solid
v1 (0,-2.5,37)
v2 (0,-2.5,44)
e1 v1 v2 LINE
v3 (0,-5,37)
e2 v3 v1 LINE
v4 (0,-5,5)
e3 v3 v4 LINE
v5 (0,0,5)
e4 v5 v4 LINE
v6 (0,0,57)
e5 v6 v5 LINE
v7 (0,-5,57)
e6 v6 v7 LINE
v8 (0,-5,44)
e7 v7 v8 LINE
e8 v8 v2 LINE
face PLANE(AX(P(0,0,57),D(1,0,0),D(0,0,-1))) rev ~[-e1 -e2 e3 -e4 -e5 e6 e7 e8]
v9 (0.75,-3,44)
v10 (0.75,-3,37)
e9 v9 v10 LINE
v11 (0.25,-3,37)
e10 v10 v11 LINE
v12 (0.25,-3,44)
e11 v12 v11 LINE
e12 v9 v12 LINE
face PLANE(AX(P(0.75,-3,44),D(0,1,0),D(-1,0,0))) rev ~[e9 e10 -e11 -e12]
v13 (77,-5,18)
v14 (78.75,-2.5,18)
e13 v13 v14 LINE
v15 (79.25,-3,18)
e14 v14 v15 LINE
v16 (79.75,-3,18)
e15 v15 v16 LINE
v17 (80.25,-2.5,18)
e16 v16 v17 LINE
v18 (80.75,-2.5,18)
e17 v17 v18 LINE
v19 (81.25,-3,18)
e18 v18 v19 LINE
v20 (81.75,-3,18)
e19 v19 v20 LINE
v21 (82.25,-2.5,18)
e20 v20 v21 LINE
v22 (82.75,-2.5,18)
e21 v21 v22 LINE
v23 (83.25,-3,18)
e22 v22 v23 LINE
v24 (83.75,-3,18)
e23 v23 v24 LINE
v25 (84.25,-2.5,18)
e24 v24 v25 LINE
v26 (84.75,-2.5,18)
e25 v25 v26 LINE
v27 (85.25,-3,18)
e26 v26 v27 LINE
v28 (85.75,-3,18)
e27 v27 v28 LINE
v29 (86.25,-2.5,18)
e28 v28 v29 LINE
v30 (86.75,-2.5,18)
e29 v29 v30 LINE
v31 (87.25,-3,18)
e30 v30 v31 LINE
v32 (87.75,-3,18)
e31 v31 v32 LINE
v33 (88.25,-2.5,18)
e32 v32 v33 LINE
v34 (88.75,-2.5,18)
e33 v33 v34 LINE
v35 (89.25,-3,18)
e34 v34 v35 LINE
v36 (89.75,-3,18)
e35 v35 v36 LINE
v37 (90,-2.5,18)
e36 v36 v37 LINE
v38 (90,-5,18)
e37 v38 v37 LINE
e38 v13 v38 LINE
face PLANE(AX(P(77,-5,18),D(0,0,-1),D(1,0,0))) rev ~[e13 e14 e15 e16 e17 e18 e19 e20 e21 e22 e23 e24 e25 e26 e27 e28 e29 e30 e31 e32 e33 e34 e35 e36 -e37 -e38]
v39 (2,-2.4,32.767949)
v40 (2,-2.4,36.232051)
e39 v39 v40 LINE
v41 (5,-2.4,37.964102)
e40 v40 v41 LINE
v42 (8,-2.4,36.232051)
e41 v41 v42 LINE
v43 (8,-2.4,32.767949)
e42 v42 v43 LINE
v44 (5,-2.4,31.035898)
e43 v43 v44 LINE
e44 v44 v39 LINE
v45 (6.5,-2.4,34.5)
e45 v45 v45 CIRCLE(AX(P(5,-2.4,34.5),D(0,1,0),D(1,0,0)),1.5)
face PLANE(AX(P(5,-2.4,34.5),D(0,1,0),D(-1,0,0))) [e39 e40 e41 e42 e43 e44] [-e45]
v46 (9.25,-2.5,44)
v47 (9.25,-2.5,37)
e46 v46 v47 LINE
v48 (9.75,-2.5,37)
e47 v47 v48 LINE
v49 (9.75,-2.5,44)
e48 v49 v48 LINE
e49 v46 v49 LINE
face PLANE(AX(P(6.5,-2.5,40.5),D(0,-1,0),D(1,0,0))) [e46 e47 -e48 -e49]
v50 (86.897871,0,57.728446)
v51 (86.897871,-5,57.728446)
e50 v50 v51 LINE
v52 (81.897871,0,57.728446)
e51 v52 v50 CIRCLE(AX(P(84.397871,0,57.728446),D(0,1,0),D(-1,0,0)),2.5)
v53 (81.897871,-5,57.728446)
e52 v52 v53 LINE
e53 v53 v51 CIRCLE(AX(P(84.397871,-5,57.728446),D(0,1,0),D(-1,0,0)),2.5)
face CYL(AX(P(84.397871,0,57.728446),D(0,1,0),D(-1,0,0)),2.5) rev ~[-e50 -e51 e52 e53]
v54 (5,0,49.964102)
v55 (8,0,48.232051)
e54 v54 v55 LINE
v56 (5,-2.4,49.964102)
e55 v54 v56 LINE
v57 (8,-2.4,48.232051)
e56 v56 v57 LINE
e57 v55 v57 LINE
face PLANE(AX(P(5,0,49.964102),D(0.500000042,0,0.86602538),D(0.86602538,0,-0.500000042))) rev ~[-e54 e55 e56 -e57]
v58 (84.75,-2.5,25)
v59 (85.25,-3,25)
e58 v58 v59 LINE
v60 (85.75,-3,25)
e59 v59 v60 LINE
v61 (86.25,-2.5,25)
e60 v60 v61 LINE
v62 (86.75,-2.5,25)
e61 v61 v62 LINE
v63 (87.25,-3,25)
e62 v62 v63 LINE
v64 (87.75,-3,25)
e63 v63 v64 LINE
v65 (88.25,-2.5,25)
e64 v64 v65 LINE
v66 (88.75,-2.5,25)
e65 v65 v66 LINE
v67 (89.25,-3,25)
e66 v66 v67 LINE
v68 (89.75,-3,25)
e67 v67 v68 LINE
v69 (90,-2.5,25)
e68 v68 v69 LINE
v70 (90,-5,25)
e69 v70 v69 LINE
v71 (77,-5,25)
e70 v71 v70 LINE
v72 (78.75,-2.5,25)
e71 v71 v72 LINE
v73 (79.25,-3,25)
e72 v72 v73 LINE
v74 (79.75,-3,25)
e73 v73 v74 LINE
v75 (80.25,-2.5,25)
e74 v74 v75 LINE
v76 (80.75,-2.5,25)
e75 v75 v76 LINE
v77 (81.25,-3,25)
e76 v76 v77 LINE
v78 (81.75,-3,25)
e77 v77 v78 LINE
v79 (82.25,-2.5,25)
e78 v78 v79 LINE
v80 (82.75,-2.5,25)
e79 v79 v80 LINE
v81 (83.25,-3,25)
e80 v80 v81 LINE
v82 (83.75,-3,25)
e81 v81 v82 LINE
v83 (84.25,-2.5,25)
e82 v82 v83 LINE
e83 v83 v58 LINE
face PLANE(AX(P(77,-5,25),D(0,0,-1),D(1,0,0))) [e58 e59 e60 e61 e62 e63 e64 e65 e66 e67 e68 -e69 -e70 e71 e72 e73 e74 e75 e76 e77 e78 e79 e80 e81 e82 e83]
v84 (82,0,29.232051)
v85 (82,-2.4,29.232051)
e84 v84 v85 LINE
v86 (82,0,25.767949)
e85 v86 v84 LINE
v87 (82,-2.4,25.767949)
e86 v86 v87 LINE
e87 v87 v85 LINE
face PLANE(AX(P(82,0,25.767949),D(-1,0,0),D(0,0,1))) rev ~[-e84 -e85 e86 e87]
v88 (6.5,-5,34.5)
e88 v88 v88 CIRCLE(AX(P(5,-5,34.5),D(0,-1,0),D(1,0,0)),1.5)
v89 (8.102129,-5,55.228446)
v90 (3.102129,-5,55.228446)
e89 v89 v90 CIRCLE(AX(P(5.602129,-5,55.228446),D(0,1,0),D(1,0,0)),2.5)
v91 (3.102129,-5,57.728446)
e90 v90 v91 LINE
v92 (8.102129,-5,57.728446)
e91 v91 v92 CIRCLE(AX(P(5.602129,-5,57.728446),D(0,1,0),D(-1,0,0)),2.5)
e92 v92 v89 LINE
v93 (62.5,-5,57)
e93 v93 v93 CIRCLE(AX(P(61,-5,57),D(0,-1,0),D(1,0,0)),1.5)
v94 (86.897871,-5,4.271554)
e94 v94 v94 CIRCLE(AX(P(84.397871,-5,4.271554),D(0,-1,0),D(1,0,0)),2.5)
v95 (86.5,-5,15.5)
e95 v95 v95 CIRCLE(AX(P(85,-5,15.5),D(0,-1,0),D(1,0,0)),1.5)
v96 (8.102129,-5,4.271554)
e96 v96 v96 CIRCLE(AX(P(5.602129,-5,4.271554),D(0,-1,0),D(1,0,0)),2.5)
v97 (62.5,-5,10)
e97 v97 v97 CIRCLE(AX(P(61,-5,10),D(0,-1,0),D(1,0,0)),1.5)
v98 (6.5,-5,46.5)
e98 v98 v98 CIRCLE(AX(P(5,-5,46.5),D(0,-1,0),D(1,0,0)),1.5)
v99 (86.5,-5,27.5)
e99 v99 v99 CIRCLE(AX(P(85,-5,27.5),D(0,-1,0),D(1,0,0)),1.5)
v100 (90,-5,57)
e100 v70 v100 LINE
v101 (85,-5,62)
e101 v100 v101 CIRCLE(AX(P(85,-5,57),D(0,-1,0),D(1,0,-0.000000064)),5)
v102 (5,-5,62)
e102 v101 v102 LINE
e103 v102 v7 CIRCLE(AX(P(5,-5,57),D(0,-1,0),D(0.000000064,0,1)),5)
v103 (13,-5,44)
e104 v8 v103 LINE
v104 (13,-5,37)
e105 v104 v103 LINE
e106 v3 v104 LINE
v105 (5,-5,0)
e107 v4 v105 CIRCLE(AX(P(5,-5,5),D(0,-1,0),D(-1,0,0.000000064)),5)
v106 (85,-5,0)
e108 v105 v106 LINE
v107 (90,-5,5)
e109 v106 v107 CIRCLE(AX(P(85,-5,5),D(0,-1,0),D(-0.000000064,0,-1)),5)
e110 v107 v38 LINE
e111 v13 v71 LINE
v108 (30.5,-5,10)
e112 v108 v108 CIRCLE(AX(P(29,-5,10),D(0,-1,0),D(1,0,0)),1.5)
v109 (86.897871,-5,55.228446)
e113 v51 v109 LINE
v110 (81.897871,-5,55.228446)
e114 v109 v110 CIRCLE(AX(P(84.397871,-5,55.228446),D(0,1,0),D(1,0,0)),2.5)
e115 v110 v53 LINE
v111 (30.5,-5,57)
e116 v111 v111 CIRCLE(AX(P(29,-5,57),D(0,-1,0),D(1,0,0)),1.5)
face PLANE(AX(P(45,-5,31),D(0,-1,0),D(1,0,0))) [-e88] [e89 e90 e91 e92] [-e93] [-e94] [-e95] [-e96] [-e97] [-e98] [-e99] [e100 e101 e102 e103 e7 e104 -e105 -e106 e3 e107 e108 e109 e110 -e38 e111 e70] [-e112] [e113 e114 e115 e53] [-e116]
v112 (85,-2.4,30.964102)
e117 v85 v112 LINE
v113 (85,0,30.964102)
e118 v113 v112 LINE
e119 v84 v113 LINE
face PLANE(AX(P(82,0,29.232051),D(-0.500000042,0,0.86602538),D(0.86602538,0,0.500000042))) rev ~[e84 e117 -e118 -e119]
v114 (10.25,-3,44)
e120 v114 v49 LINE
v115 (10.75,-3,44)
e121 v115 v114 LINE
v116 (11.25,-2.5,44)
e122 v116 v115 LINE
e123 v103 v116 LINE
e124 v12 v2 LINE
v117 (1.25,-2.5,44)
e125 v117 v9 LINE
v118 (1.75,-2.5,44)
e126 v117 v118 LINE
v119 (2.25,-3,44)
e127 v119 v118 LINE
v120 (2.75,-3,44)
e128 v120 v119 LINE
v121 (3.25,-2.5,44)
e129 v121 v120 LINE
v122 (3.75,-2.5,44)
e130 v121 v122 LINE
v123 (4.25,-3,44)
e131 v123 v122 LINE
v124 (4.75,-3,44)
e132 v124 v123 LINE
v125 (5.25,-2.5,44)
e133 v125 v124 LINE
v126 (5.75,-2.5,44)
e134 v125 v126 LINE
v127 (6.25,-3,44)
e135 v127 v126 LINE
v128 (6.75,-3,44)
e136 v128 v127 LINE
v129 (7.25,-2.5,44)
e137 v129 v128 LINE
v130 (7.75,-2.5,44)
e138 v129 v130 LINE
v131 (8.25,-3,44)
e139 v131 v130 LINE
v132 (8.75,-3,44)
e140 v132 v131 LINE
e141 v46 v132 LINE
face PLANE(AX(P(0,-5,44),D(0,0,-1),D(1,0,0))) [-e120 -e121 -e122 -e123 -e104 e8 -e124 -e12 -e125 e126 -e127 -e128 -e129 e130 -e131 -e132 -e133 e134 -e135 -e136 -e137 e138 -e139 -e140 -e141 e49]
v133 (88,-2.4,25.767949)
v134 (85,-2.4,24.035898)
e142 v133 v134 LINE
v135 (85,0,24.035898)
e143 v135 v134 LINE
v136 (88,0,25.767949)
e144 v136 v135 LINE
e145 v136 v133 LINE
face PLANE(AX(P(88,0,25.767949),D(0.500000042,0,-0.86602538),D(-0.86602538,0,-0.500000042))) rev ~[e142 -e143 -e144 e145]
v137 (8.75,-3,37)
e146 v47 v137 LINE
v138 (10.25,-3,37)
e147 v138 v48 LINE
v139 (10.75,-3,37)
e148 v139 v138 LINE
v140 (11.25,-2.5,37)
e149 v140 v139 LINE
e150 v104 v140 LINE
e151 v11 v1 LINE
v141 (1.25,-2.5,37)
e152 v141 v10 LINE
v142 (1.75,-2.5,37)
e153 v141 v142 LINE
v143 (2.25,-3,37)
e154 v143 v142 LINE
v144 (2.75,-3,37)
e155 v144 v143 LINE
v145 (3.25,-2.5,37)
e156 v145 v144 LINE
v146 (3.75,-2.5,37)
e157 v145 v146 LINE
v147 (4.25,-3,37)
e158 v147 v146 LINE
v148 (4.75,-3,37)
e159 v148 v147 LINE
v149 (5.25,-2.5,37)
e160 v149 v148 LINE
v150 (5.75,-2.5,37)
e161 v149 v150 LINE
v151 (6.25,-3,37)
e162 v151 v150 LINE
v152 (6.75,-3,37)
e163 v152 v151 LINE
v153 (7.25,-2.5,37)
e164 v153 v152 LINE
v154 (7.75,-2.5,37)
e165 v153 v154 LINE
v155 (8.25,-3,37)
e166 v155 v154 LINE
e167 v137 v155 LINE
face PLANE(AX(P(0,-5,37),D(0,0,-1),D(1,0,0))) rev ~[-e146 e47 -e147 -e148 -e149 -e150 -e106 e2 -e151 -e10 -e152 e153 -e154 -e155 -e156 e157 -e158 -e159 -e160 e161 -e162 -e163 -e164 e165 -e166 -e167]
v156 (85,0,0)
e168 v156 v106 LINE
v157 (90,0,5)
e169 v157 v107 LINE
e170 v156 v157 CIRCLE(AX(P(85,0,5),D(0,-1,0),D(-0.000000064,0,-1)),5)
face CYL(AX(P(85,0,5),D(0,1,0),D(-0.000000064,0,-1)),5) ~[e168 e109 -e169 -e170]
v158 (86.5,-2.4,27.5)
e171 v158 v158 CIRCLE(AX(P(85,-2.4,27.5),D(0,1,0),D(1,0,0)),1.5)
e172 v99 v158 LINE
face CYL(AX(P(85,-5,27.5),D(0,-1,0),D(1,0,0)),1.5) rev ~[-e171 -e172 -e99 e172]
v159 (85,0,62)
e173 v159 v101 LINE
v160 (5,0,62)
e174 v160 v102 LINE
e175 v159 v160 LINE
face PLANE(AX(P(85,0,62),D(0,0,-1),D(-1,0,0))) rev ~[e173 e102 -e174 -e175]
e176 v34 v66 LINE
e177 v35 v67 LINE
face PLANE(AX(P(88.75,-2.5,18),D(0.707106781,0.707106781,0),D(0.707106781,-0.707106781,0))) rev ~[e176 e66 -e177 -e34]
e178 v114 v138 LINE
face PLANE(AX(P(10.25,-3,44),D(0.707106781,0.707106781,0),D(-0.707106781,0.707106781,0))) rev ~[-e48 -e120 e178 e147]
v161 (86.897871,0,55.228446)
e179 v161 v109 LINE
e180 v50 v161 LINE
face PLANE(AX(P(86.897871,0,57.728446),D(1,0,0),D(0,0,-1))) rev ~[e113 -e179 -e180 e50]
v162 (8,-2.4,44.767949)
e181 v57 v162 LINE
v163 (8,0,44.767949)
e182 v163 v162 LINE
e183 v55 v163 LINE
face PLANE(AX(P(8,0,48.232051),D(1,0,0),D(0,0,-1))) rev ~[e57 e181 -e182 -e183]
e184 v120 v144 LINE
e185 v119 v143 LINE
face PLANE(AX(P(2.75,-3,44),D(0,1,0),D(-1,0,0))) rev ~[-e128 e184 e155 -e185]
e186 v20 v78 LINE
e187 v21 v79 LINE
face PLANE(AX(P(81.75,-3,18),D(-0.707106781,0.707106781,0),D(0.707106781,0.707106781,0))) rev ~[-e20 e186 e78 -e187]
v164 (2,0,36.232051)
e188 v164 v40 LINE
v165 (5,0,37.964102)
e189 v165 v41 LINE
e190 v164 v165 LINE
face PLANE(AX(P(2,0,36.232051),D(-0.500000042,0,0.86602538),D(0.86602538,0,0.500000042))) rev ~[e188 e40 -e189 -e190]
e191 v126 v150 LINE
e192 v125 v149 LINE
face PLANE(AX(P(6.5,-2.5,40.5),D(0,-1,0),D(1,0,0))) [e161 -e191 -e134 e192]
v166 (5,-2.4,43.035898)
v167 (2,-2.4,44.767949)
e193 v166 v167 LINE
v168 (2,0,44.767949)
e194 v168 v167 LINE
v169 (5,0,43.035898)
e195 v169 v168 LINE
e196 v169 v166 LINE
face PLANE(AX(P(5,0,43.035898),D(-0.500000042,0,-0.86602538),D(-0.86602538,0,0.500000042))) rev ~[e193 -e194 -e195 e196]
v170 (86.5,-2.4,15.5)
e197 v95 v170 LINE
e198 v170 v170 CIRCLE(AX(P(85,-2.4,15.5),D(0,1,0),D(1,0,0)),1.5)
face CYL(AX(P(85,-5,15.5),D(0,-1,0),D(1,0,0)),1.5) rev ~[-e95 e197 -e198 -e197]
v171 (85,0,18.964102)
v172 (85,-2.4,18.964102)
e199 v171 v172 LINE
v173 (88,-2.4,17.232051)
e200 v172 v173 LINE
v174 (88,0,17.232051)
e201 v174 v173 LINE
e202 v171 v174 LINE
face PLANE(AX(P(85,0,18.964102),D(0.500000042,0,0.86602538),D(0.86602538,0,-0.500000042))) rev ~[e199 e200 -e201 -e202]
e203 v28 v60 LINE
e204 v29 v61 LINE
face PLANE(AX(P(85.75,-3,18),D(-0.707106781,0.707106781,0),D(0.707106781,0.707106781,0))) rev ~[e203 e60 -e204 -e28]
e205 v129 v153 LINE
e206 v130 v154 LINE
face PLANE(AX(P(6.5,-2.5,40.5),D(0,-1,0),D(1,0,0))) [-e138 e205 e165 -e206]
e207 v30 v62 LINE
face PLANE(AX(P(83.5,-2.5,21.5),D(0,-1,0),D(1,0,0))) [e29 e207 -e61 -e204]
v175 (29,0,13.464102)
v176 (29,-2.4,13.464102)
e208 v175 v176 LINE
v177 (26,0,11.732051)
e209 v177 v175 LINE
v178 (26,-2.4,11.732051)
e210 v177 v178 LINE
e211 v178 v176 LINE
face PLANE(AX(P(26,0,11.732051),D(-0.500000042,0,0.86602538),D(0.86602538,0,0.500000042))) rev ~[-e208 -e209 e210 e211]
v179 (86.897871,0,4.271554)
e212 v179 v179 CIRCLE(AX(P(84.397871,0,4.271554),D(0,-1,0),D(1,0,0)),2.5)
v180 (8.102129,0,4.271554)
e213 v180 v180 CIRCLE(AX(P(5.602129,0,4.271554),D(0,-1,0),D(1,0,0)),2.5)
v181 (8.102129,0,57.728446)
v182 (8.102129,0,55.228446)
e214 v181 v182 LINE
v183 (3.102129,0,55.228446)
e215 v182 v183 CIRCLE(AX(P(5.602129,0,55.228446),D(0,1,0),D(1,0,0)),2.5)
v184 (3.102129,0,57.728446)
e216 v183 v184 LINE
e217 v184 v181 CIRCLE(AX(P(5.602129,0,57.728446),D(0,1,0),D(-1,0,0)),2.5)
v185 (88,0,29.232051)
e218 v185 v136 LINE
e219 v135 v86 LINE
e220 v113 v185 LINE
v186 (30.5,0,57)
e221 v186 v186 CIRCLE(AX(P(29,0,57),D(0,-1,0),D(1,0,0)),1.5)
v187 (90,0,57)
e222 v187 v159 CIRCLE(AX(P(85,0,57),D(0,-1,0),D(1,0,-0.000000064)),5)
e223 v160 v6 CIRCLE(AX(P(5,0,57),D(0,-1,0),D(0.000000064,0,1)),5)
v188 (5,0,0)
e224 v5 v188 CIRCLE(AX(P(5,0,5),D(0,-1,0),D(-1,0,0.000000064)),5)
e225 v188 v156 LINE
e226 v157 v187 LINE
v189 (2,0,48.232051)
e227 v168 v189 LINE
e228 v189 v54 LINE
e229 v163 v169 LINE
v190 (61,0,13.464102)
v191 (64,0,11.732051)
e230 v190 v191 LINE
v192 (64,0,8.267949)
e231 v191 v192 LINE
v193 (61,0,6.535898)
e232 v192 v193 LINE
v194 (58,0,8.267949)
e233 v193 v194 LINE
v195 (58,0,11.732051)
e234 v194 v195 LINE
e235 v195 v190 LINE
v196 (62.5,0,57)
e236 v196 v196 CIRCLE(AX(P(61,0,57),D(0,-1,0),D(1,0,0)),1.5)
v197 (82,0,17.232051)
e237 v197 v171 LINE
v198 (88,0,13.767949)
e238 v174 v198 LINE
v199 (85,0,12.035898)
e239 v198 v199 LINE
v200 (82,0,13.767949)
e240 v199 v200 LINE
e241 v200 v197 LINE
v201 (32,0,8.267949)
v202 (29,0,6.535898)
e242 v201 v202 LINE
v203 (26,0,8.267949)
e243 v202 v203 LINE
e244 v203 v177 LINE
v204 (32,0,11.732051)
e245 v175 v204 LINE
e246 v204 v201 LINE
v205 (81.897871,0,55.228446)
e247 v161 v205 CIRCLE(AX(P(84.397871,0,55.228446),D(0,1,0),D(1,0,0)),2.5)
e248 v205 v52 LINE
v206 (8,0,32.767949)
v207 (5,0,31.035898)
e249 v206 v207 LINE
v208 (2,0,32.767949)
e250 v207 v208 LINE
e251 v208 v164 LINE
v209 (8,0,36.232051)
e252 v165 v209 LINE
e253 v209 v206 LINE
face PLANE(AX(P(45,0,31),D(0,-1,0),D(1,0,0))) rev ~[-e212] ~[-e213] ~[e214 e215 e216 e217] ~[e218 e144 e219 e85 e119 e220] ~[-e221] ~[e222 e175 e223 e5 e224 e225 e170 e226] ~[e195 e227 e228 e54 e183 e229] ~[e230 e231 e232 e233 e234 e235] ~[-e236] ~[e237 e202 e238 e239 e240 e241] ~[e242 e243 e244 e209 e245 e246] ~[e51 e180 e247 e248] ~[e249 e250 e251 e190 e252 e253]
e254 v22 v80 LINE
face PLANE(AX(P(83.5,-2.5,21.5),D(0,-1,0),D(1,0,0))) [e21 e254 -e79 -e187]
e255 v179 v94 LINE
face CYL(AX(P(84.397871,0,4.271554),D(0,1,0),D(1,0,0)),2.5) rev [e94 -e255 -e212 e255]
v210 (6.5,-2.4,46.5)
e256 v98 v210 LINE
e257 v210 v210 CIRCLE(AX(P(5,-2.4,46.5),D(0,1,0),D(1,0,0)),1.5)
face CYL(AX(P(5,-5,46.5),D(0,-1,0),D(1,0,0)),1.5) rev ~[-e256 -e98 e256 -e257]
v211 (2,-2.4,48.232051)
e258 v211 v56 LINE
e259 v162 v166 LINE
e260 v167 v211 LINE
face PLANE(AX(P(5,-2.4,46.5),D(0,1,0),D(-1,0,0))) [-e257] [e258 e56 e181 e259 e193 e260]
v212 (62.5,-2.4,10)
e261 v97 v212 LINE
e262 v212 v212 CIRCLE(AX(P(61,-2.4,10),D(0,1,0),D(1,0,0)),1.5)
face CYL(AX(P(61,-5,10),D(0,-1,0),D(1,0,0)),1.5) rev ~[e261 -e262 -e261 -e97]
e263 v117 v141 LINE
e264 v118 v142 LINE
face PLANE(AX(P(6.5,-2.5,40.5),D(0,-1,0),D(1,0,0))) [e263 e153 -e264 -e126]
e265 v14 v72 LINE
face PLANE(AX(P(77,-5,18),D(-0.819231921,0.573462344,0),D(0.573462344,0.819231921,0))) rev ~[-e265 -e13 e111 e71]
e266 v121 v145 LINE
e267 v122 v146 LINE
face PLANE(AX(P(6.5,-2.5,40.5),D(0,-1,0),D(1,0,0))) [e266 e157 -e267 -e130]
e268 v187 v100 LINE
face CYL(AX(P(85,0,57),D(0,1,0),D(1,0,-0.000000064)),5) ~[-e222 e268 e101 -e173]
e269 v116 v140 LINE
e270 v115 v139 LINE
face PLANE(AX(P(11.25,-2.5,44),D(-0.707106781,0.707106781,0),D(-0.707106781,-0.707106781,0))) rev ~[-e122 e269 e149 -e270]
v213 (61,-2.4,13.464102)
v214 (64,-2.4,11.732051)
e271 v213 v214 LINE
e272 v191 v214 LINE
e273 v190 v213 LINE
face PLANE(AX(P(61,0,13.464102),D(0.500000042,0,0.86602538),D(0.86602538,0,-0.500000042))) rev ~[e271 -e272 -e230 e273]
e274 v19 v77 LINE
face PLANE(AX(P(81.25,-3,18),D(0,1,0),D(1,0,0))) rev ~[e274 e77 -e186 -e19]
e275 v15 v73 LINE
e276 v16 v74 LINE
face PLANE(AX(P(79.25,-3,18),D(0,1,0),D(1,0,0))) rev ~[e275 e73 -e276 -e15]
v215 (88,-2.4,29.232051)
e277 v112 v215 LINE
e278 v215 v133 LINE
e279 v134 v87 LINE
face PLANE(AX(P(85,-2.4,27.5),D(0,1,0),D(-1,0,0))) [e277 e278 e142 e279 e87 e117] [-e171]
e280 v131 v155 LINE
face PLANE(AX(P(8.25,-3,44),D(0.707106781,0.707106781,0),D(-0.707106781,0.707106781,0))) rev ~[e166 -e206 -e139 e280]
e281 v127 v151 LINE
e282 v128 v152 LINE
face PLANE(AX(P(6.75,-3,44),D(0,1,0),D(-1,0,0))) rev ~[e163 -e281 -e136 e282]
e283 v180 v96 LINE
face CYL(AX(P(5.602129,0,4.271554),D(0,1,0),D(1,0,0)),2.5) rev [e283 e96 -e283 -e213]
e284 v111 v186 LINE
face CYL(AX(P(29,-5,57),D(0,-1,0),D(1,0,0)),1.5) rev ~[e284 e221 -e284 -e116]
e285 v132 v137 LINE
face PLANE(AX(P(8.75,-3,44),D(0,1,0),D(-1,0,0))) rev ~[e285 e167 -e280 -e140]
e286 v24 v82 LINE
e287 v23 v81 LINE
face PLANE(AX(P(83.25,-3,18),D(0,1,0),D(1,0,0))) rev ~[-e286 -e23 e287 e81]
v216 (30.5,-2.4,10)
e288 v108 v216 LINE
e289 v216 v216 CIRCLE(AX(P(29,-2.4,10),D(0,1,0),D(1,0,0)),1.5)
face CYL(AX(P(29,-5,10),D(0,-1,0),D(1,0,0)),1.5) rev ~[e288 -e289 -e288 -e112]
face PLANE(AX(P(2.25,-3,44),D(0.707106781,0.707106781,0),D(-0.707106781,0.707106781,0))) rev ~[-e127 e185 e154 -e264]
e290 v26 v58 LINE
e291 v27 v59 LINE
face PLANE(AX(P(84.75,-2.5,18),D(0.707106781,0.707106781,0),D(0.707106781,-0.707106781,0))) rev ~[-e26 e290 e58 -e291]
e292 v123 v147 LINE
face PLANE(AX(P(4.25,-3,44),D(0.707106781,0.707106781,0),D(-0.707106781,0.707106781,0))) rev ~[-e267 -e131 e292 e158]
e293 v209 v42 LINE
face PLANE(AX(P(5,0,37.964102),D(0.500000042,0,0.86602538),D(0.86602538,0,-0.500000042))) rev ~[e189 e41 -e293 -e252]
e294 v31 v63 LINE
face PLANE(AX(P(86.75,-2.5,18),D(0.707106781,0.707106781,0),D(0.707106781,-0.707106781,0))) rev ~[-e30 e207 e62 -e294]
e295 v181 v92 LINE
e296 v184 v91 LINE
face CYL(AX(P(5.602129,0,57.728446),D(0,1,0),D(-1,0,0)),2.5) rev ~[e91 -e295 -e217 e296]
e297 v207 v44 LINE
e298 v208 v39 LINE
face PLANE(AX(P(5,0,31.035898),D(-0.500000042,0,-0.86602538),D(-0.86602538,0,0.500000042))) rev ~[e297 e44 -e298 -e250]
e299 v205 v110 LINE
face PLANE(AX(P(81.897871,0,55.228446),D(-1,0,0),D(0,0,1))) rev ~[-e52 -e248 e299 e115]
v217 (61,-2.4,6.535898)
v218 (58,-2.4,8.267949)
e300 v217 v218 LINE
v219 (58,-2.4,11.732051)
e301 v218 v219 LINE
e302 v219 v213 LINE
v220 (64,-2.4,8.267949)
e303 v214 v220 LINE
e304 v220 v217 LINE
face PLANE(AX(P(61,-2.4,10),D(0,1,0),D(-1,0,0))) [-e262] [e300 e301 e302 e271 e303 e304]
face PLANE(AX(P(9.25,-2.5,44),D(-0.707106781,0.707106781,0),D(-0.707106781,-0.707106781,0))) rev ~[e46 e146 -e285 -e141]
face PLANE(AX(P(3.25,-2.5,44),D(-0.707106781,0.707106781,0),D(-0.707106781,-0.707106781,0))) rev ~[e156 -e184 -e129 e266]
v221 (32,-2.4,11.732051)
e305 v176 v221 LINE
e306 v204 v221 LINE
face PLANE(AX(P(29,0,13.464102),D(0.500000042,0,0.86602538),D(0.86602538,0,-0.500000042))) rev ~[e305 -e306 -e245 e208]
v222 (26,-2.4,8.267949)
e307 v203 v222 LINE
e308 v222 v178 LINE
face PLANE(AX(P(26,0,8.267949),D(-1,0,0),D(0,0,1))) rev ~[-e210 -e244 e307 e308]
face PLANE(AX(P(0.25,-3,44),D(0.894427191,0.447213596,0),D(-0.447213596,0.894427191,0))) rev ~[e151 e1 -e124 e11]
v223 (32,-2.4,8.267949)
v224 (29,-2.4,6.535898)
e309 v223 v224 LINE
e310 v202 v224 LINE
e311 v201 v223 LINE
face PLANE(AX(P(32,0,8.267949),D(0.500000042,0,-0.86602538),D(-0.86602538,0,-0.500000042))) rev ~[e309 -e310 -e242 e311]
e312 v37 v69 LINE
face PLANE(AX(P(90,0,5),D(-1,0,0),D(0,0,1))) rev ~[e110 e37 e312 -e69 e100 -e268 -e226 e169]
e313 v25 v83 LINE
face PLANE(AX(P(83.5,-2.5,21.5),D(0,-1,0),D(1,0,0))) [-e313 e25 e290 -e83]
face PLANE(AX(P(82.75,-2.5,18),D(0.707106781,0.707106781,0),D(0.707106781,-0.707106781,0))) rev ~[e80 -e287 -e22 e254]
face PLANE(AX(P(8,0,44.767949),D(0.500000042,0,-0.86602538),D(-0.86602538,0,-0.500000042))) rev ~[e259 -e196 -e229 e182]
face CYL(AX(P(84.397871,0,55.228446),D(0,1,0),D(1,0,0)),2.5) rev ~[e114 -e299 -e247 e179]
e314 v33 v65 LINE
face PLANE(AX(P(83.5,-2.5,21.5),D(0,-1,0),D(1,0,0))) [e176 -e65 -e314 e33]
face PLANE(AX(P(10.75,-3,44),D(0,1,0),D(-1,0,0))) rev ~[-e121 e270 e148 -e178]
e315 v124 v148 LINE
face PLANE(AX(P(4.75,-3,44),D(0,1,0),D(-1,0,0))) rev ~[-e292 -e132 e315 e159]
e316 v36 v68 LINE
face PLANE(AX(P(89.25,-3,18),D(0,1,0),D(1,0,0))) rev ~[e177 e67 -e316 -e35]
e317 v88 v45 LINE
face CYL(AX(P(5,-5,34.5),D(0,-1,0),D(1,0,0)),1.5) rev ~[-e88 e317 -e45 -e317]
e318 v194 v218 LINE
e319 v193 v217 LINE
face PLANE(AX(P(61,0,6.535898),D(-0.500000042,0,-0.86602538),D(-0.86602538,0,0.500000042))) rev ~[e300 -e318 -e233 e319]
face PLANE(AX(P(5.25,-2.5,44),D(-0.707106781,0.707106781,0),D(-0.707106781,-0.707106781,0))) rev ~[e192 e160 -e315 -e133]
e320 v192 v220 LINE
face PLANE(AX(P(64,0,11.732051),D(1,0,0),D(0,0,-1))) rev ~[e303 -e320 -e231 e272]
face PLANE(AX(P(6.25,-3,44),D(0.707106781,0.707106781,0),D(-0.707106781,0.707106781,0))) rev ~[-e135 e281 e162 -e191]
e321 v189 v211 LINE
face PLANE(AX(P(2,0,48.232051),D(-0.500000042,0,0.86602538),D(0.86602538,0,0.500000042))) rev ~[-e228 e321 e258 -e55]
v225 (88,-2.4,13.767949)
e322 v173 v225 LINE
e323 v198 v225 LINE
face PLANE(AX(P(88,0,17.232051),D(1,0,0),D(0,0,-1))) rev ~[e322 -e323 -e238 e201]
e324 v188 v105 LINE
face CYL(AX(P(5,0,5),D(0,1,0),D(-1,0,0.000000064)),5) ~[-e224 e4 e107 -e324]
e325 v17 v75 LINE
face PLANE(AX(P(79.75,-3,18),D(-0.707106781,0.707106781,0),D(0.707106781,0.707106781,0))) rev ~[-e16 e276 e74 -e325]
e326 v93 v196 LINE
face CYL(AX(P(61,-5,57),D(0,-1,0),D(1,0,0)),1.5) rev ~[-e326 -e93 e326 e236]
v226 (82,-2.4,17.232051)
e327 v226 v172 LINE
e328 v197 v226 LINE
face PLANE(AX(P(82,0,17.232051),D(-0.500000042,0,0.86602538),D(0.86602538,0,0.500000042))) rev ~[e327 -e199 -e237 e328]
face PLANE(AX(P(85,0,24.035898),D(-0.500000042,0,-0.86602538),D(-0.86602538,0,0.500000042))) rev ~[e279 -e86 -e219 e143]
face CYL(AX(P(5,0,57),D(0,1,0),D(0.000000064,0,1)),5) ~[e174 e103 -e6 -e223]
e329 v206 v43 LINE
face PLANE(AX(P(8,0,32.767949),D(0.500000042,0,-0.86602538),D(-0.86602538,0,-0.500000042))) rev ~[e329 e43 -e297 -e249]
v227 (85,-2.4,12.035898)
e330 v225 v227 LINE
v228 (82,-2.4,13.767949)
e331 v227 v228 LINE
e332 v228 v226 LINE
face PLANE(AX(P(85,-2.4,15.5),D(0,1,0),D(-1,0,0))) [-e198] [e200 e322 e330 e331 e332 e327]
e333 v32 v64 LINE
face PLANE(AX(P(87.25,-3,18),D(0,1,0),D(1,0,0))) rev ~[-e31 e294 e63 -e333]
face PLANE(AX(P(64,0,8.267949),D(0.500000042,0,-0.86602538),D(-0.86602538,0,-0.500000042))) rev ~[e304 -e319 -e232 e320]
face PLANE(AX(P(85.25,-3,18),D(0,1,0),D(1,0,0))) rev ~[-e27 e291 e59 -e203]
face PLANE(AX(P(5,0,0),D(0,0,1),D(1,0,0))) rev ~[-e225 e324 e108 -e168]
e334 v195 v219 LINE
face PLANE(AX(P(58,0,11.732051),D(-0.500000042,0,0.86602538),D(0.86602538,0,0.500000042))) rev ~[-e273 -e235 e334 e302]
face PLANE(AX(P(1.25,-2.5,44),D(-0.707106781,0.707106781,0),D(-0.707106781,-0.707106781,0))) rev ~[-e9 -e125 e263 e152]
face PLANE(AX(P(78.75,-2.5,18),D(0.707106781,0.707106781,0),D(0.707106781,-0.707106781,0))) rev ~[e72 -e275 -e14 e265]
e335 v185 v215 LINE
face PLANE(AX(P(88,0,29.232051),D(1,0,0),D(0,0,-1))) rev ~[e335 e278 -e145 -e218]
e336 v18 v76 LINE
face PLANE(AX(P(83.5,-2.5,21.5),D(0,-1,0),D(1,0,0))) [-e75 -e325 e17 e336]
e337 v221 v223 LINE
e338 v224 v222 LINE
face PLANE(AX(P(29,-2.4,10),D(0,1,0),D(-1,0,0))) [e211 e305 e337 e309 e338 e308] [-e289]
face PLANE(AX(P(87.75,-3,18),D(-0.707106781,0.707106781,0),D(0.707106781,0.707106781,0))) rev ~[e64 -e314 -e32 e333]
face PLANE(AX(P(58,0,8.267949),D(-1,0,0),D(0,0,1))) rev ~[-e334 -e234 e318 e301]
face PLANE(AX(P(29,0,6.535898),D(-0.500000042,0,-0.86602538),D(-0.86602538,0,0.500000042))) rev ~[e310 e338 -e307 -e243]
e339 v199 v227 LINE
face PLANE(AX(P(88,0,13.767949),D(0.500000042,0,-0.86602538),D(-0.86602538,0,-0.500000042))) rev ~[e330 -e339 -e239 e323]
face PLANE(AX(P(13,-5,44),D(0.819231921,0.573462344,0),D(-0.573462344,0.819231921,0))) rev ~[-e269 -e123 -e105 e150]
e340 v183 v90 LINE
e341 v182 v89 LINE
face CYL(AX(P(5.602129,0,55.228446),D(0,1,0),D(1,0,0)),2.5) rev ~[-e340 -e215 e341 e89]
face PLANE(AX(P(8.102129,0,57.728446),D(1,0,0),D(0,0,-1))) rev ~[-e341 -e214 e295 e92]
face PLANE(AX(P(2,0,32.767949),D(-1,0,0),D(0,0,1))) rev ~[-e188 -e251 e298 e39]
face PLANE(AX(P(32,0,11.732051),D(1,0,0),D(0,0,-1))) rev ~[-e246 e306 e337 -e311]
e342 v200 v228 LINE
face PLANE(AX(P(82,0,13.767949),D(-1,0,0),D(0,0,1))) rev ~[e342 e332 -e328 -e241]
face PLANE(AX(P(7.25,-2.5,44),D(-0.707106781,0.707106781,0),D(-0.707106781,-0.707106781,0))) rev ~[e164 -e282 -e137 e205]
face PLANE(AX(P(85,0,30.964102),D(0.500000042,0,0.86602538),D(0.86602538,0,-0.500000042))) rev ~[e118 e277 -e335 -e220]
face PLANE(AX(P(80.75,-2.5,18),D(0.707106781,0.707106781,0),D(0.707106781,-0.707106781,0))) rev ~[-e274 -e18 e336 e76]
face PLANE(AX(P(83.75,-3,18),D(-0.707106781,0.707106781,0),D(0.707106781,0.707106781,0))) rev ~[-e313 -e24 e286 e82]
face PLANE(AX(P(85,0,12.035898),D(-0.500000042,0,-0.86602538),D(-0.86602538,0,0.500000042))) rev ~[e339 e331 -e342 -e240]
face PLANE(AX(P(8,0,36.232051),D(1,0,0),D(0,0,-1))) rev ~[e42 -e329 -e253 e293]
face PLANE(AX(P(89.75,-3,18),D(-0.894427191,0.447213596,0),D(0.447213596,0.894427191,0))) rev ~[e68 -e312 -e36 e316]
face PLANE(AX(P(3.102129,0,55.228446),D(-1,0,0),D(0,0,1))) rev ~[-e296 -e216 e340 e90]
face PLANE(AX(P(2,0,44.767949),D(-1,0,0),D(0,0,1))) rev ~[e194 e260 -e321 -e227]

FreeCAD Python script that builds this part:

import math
import FreeCAD as App
import Part
import Sketcher
Q = App.Units.Quantity


def add_polygon(sketch, points):
    """Adds a closed chain of lines whose ends are joined by coincident constraints."""
    first, n = sketch.GeometryCount, len(points)
    for a, b in zip(points, points[1:] + points[:1]):
        sketch.addGeometry(Part.LineSegment(App.Vector(*a, 0), App.Vector(*b, 0)), False)
    for i in range(n):
        sketch.addConstraint(Sketcher.Constraint("Coincident", first + i, 2, first + (i + 1) % n, 1))

doc = App.newDocument("Part")
body = doc.addObject("PartDesign::Body", "Body")

sketch1 = body.newObject("Sketcher::SketchObject", "Sketch")
sketch1.AttachmentSupport = (doc.getObject("XZ_Plane"), [""])
sketch1.MapMode = "FlatFace"
sketch1.addGeometry([
    Part.ArcOfCircle(Part.Circle(App.Vector(5, 5, 0), App.Vector(0, 0, 1), 5), math.radians(179.999996), math.radians(270.000004)),
    Part.LineSegment(App.Vector(5, 0, 0), App.Vector(85, 0, 0)),
    Part.ArcOfCircle(Part.Circle(App.Vector(85, 5, 0), App.Vector(0, 0, 1), 5), math.radians(-90.000004), math.radians(0.000004)),
    Part.LineSegment(App.Vector(90, 5, 0), App.Vector(90, 57, 0)),
    Part.ArcOfCircle(Part.Circle(App.Vector(85, 57, 0), App.Vector(0, 0, 1), 5), math.radians(-0.000004), math.radians(90.000004)),
    Part.LineSegment(App.Vector(85, 62, 0), App.Vector(5, 62, 0)),
    Part.ArcOfCircle(Part.Circle(App.Vector(5, 57, 0), App.Vector(0, 0, 1), 5), math.radians(89.999996), math.radians(180.000004)),
    Part.LineSegment(App.Vector(0, 57, 0), App.Vector(0, 5, 0)),
    Part.Circle(App.Vector(5.602129, 4.271554, 0), App.Vector(0, 0, 1), 2.5),
    Part.Circle(App.Vector(84.397871, 4.271554, 0), App.Vector(0, 0, 1), 2.5),
    Part.ArcOfCircle(Part.Circle(App.Vector(5.602129, 55.228446, 0), App.Vector(0, 0, 1), 2.5), math.radians(180), math.radians(360)),
    Part.LineSegment(App.Vector(3.102129, 55.228446, 0), App.Vector(3.102129, 57.728446, 0)),
    Part.ArcOfCircle(Part.Circle(App.Vector(5.602129, 57.728446, 0), App.Vector(0, 0, 1), 2.5), math.radians(0), math.radians(180)),
    Part.LineSegment(App.Vector(8.102129, 57.728446, 0), App.Vector(8.102129, 55.228446, 0)),
    Part.LineSegment(App.Vector(81.897871, 55.228446, 0), App.Vector(81.897871, 57.728446, 0)),
    Part.ArcOfCircle(Part.Circle(App.Vector(84.397871, 57.728446, 0), App.Vector(0, 0, 1), 2.5), math.radians(0), math.radians(180)),
    Part.LineSegment(App.Vector(86.897871, 57.728446, 0), App.Vector(86.897871, 55.228446, 0)),
    Part.ArcOfCircle(Part.Circle(App.Vector(84.397871, 55.228446, 0), App.Vector(0, 0, 1), 2.5), math.radians(180), math.radians(360)),
], False)
sketch1.addConstraint([
    Sketcher.Constraint("Tangent", 0, 2, 1, 1),
    Sketcher.Constraint("Tangent", 1, 2, 2, 1),
    Sketcher.Constraint("Tangent", 2, 2, 3, 1),
    Sketcher.Constraint("Tangent", 3, 2, 4, 1),
    Sketcher.Constraint("Tangent", 4, 2, 5, 1),
    Sketcher.Constraint("Tangent", 5, 2, 6, 1),
    Sketcher.Constraint("Tangent", 6, 2, 7, 1),
    Sketcher.Constraint("Tangent", 7, 2, 0, 1),
    Sketcher.Constraint("Tangent", 10, 1, 11, 1),
    Sketcher.Constraint("Tangent", 11, 2, 12, 2),
    Sketcher.Constraint("Tangent", 12, 1, 13, 1),
    Sketcher.Constraint("Tangent", 13, 2, 10, 2),
    Sketcher.Constraint("Tangent", 14, 2, 15, 2),
    Sketcher.Constraint("Tangent", 15, 1, 16, 1),
    Sketcher.Constraint("Tangent", 16, 2, 17, 2),
    Sketcher.Constraint("Tangent", 17, 1, 14, 1),
    Sketcher.Constraint("Horizontal", 1),
    Sketcher.Constraint("Vertical", 3),
    Sketcher.Constraint("Horizontal", 5),
    Sketcher.Constraint("Vertical", 7),
    Sketcher.Constraint("Vertical", 11),
    Sketcher.Constraint("Vertical", 13),
    Sketcher.Constraint("Vertical", 14),
    Sketcher.Constraint("Vertical", 16),
    Sketcher.Constraint("Equal", 0, 2),
    Sketcher.Constraint("Equal", 2, 4),
    Sketcher.Constraint("Equal", 4, 6),
    Sketcher.Constraint("Equal", 8, 9),
    Sketcher.Constraint("Equal", 9, 10),
    Sketcher.Constraint("Equal", 12, 15),
    Sketcher.Constraint("PointOnObject", 0, 2, -1),
    Sketcher.Constraint("PointOnObject", 6, 2, -2),
    Sketcher.Constraint("Horizontal", 8, 3, 9, 3),
    Sketcher.Constraint("Horizontal", 12, 3, 15, 3),
    Sketcher.Constraint("Horizontal", 10, 3, 17, 3),
    Sketcher.Constraint("Vertical", 8, 3, 10, 3),
    Sketcher.Constraint("Vertical", 9, 3, 15, 3),
    Sketcher.Constraint("Diameter", 8, 5.0),
    Sketcher.Constraint("Radius", 0, 5.0),
    Sketcher.Constraint("DistanceX", 1, 1, 1, 2, 80.0),
    Sketcher.Constraint("DistanceY", 3, 1, 3, 2, 52.0),
    Sketcher.Constraint("DistanceY", 11, 1, 11, 2, 2.5),
    Sketcher.Constraint("DistanceX", -1, 1, 8, 3, 5.602129),
    Sketcher.Constraint("DistanceX", -1, 1, 9, 3, 84.397871),
    Sketcher.Constraint("DistanceY", 8, 3, 10, 3, 50.956892),
    Sketcher.Constraint("DistanceY", -1, 1, 8, 3, 4.271554),
])
pad1 = body.newObject("PartDesign::Pad", "Pad")
pad1.Profile = sketch1
pad1.Length = 5

sketch2 = body.newObject("Sketcher::SketchObject", "Sketch001")
sketch2.AttachmentSupport = (doc.getObject("XZ_Plane"), [""])
sketch2.MapMode = "FlatFace"
sketch2.AttachmentOffset = App.Placement(App.Vector(0, 0, 5), App.Rotation())
add_polygon(sketch2, [(0, 44), (0, 37), (13, 37), (13, 44)])
add_polygon(sketch2, [(77, 25), (77, 18), (90, 18), (90, 25)])
sketch2.addConstraint([
    Sketcher.Constraint("Vertical", 0),
    Sketcher.Constraint("Horizontal", 1),
    Sketcher.Constraint("Vertical", 2),
    Sketcher.Constraint("Horizontal", 3),
    Sketcher.Constraint("Vertical", 4),
    Sketcher.Constraint("Horizontal", 5),
    Sketcher.Constraint("Vertical", 6),
    Sketcher.Constraint("Horizontal", 7),
    Sketcher.Constraint("PointOnObject", 0, 2, -2),
    Sketcher.Constraint("Equal", 3, 5),
    Sketcher.Constraint("Equal", 2, 4),
    Sketcher.Constraint("DistanceX", 1, 1, 1, 2, 13.0),
    Sketcher.Constraint("DistanceY", 0, 2, 0, 1, 7.0),
    Sketcher.Constraint("DistanceY", -1, 1, 0, 2, 37.0),
    Sketcher.Constraint("DistanceX", -1, 1, 4, 2, 77.0),
    Sketcher.Constraint("DistanceY", -1, 1, 4, 2, 18.0),
])
pocket1 = body.newObject("PartDesign::Pocket", "Pocket")
pocket1.Profile = sketch2
pocket1.Length = 2.5

sketch3 = body.newObject("Sketcher::SketchObject", "Sketch002")
sketch3.AttachmentSupport = (doc.getObject("XY_Plane"), [""])
sketch3.MapMode = "FlatFace"
sketch3.AttachmentOffset = App.Placement(App.Vector(0, 0, 44), App.Rotation())
add_polygon(sketch3, [(13, -2.5), (13, -5), (11.25, -2.5)])
add_polygon(sketch3, [(7.75, -2.5), (9.25, -2.5), (8.75, -3), (8.25, -3)])
add_polygon(sketch3, [(9.75, -2.5), (11.25, -2.5), (10.75, -3), (10.25, -3)])
add_polygon(sketch3, [(6.25, -3), (5.75, -2.5), (7.25, -2.5), (6.75, -3)])
add_polygon(sketch3, [(4.25, -3), (3.75, -2.5), (5.25, -2.5), (4.75, -3)])
add_polygon(sketch3, [(2.25, -3), (1.75, -2.5), (3.25, -2.5), (2.75, -3)])
add_polygon(sketch3, [(0.25, -3), (0, -2.5), (1.25, -2.5), (0.75, -3)])
sketch3.addConstraint([
    Sketcher.Constraint("Vertical", 0),
    Sketcher.Constraint("Horizontal", 2),
    Sketcher.Constraint("Horizontal", 3),
    Sketcher.Constraint("Horizontal", 5),
    Sketcher.Constraint("Horizontal", 7),
    Sketcher.Constraint("Horizontal", 9),
    Sketcher.Constraint("Horizontal", 12),
    Sketcher.Constraint("Horizontal", 14),
    Sketcher.Constraint("Horizontal", 16),
    Sketcher.Constraint("Horizontal", 18),
    Sketcher.Constraint("Horizontal", 20),
    Sketcher.Constraint("Horizontal", 22),
    Sketcher.Constraint("Horizontal", 24),
    Sketcher.Constraint("Horizontal", 26),
    Sketcher.Constraint("Coincident", 7, 2, 1, 2),
    Sketcher.Constraint("PointOnObject", 23, 2, -2),
    Sketcher.Constraint("Perpendicular", 4, 6),
    Sketcher.Constraint("Perpendicular", 6, 8),
    Sketcher.Constraint("Perpendicular", 8, 10),
    Sketcher.Constraint("Parallel", 10, 11),
    Sketcher.Constraint("Perpendicular", 11, 13),
    Sketcher.Constraint("Perpendicular", 13, 15),
    Sketcher.Constraint("Perpendicular", 15, 17),
    Sketcher.Constraint("Perpendicular", 17, 19),
    Sketcher.Constraint("Perpendicular", 19, 21),
    Sketcher.Constraint("Parallel", 21, 25),
    Sketcher.Constraint("Horizontal", 2, 2, 3, 2),
    Sketcher.Constraint("Horizontal", 5, 2, 8, 2),
    Sketcher.Constraint("Horizontal", 10, 2, 11, 2),
    Sketcher.Constraint("Horizontal", 9, 2, 13, 2),
    Sketcher.Constraint("Horizontal", 12, 2, 15, 2),
    Sketcher.Constraint("Horizontal", 14, 2, 17, 2),
    Sketcher.Constraint("Horizontal", 16, 2, 19, 2),
    Sketcher.Constraint("Horizontal", 18, 2, 21, 2),
    Sketcher.Constraint("Horizontal", 20, 2, 23, 2),
    Sketcher.Constraint("Horizontal", 22, 2, 25, 2),
    Sketcher.Constraint("Equal", 3, 7),
    Sketcher.Constraint("Equal", 7, 12),
    Sketcher.Constraint("Equal", 12, 16),
    Sketcher.Constraint("Equal", 16, 20),
    Sketcher.Constraint("Equal", 22, 26),
    Sketcher.Constraint("Equal", 4, 6),
    Sketcher.Constraint("DistanceX", 3, 1, 3, 2, 1.5),
    Sketcher.Constraint("DistanceX", 5, 2, 5, 1, 0.5),
    Sketcher.Constraint("DistanceY", 0, 2, 0, 1, 2.5),
    Sketcher.Constraint("DistanceX", -1, 1, 0, 2, 13.0),
    Sketcher.Constraint("DistanceY", 0, 2, -1, 1, 5.0),
    Sketcher.Constraint("DistanceX", 3, 2, 1, 2, 2.0),
    Sketcher.Constraint("DistanceX", 11, 2, 6, 2, 2.0),
    Sketcher.Constraint("DistanceX", 15, 2, 11, 2, 2.0),
    Sketcher.Constraint("DistanceX", 19, 2, 15, 2, 2.0),
    Sketcher.Constraint("DistanceX", 24, 2, 22, 2, 1.0),
    Sketcher.Constraint("DistanceX", 2, 1, 2, 2, 1.75),
])
pad2 = body.newObject("PartDesign::Pad", "Pad001")
pad2.Profile = sketch3
pad2.Length = 7
pad2.Reversed = True

sketch4 = body.newObject("Sketcher::SketchObject", "Sketch003")
sketch4.AttachmentSupport = (doc.getObject("XY_Plane"), [""])
sketch4.MapMode = "FlatFace"
sketch4.AttachmentOffset = App.Placement(App.Vector(0, 0, 18), App.Rotation())
add_polygon(sketch4, [(77, -2.5), (77, -5), (78.75, -2.5)])
add_polygon(sketch4, [(80.25, -2.5), (78.75, -2.5), (79.25, -3), (79.75, -3)])
add_polygon(sketch4, [(82.25, -2.5), (80.75, -2.5), (81.25, -3), (81.75, -3)])
add_polygon(sketch4, [(83.75, -3), (84.25, -2.5), (82.75, -2.5), (83.25, -3)])
add_polygon(sketch4, [(85.75, -3), (86.25, -2.5), (84.75, -2.5), (85.25, -3)])
add_polygon(sketch4, [(87.75, -3), (88.25, -2.5), (86.75, -2.5), (87.25, -3)])
add_polygon(sketch4, [(89.75, -3), (90, -2.5), (88.75, -2.5), (89.25, -3)])
sketch4.addConstraint([
    Sketcher.Constraint("Vertical", 0),
    Sketcher.Constraint("Horizontal", 2),
    Sketcher.Constraint("Horizontal", 3),
    Sketcher.Constraint("Horizontal", 5),
    Sketcher.Constraint("Horizontal", 7),
    Sketcher.Constraint("Horizontal", 9),
    Sketcher.Constraint("Horizontal", 12),
    Sketcher.Constraint("Horizontal", 14),
    Sketcher.Constraint("Horizontal", 16),
    Sketcher.Constraint("Horizontal", 18),
    Sketcher.Constraint("Horizontal", 20),
    Sketcher.Constraint("Horizontal", 22),
    Sketcher.Constraint("Horizontal", 24),
    Sketcher.Constraint("Horizontal", 26),
    Sketcher.Constraint("Coincident", 3, 2, 1, 2),
    Sketcher.Constraint("Perpendicular", 4, 6),
    Sketcher.Constraint("Perpendicular", 6, 8),
    Sketcher.Constraint("Perpendicular", 8, 10),
    Sketcher.Constraint("Parallel", 10, 11),
    Sketcher.Constraint("Perpendicular", 11, 13),
    Sketcher.Constraint("Perpendicular", 13, 15),
    Sketcher.Constraint("Perpendicular", 15, 17),
    Sketcher.Constraint("Perpendicular", 17, 19),
    Sketcher.Constraint("Perpendicular", 19, 21),
    Sketcher.Constraint("Parallel", 21, 25),
    Sketcher.Constraint("Horizontal", 6, 2, 7, 2),
    Sketcher.Constraint("Horizontal", 5, 2, 8, 2),
    Sketcher.Constraint("Horizontal", 10, 2, 11, 2),
    Sketcher.Constraint("Horizontal", 9, 2, 13, 2),
    Sketcher.Constraint("Horizontal", 12, 2, 15, 2),
    Sketcher.Constraint("Horizontal", 14, 2, 17, 2),
    Sketcher.Constraint("Horizontal", 16, 2, 19, 2),
    Sketcher.Constraint("Horizontal", 18, 2, 21, 2),
    Sketcher.Constraint("Horizontal", 20, 2, 23, 2),
    Sketcher.Constraint("Horizontal", 22, 2, 25, 2),
    Sketcher.Constraint("Equal", 3, 7),
    Sketcher.Constraint("Equal", 7, 12),
    Sketcher.Constraint("Equal", 12, 16),
    Sketcher.Constraint("Equal", 16, 20),
    Sketcher.Constraint("Equal", 22, 26),
    Sketcher.Constraint("Equal", 4, 6),
    Sketcher.Constraint("DistanceX", 3, 2, 3, 1, 1.5),
    Sketcher.Constraint("DistanceX", 5, 1, 5, 2, 0.5),
    Sketcher.Constraint("DistanceY", 0, 2, 0, 1, 2.5),
    Sketcher.Constraint("DistanceX", -1, 1, 0, 2, 77.0),
    Sketcher.Constraint("DistanceY", 0, 2, -1, 1, 5.0),
    Sketcher.Constraint("DistanceX", -1, 1, 23, 2, 90.0),
    Sketcher.Constraint("DistanceX", 5, 2, 7, 2, 1.0),
    Sketcher.Constraint("DistanceX", 10, 2, 11, 2, 2.0),
    Sketcher.Constraint("DistanceX", 11, 2, 15, 2, 2.0),
    Sketcher.Constraint("DistanceX", 15, 2, 19, 2, 2.0),
    Sketcher.Constraint("DistanceX", 22, 2, 24, 2, 1.0),
    Sketcher.Constraint("DistanceX", 2, 2, 2, 1, 1.75),
])
pad3 = body.newObject("PartDesign::Pad", "Pad002")
pad3.Profile = sketch4
pad3.Length = 7

sketch5 = body.newObject("Sketcher::SketchObject", "Sketch004")
sketch5.AttachmentSupport = (doc.getObject("XZ_Plane"), [""])
sketch5.MapMode = "FlatFace"
sketch5.AttachmentOffset = App.Placement(App.Vector(0, 0, 5), App.Rotation())
sketch5.addGeometry([
    Part.Circle(App.Vector(5, 46.5, 0), App.Vector(0, 0, 1), 1.5),
    Part.Circle(App.Vector(5, 34.5, 0), App.Vector(0, 0, 1), 1.5),
    Part.Circle(App.Vector(85, 27.5, 0), App.Vector(0, 0, 1), 1.5),
    Part.Circle(App.Vector(85, 15.5, 0), App.Vector(0, 0, 1), 1.5),
], False)
sketch5.addConstraint([
    Sketcher.Constraint("Equal", 0, 1),
    Sketcher.Constraint("Equal", 1, 2),
    Sketcher.Constraint("Equal", 2, 3),
    Sketcher.Constraint("Vertical", 0, 3, 1, 3),
    Sketcher.Constraint("Vertical", 2, 3, 3, 3),
    Sketcher.Constraint("Diameter", 0, 3.0),
    Sketcher.Constraint("DistanceX", -1, 1, 0, 3, 5.0),
    Sketcher.Constraint("DistanceX", -1, 1, 2, 3, 85.0),
    Sketcher.Constraint("DistanceY", 1, 3, 0, 3, 12.0),
    Sketcher.Constraint("DistanceY", 2, 3, 1, 3, 7.0),
    Sketcher.Constraint("DistanceY", 3, 3, 2, 3, 12.0),
    Sketcher.Constraint("DistanceY", -1, 1, 0, 3, 46.5),
])
pocket2 = body.newObject("PartDesign::Pocket", "Pocket001")
pocket2.Profile = sketch5
pocket2.Length = 5

sketch6 = body.newObject("Sketcher::SketchObject", "Sketch005")
sketch6.AttachmentSupport = (doc.getObject("XZ_Plane"), [""])
sketch6.MapMode = "FlatFace"
add_polygon(sketch6, [(82, 25.767949), (82, 29.232051), (85, 30.964102), (88, 29.232051), (88, 25.767949), (85, 24.035898)])
sketch6.addGeometry(Part.Circle(App.Vector(85, 27.5, 0), App.Vector(0, 0, 1), 1.5), False)
add_polygon(sketch6, [(82, 13.767949), (82, 17.232051), (85, 18.964102), (88, 17.232051), (88, 13.767949), (85, 12.035898)])
sketch6.addGeometry(Part.Circle(App.Vector(85, 15.5, 0), App.Vector(0, 0, 1), 1.5), False)
add_polygon(sketch6, [(8, 36.232051), (8, 32.767949), (5, 31.035898), (2, 32.767949), (2, 36.232051), (5, 37.964102)])
sketch6.addGeometry(Part.Circle(App.Vector(5, 34.5, 0), App.Vector(0, 0, 1), 1.5), False)
add_polygon(sketch6, [(8, 48.232051), (8, 44.767949), (5, 43.035898), (2, 44.767949), (2, 48.232051), (5, 49.964102)])
sketch6.addGeometry(Part.Circle(App.Vector(5, 46.5, 0), App.Vector(0, 0, 1), 1.5), False)
sketch6.addConstraint([
    Sketcher.Constraint("Vertical", 0),
    Sketcher.Constraint("Vertical", 3),
    Sketcher.Constraint("Vertical", 7),
    Sketcher.Constraint("Vertical", 10),
    Sketcher.Constraint("Vertical", 14),
    Sketcher.Constraint("Vertical", 17),
    Sketcher.Constraint("Vertical", 21),
    Sketcher.Constraint("Vertical", 24),
    Sketcher.Constraint("Equal", 6, 13),
    Sketcher.Constraint("Equal", 13, 20),
    Sketcher.Constraint("Equal", 20, 27),
    Sketcher.Constraint("Parallel", 1, 4),
    Sketcher.Constraint("Parallel", 2, 5),
    Sketcher.Constraint("Parallel", 4, 8),
    Sketcher.Constraint("Parallel", 5, 9),
    Sketcher.Constraint("Parallel", 8, 11),
    Sketcher.Constraint("Parallel", 9, 12),
    Sketcher.Constraint("Parallel", 11, 15),
    Sketcher.Constraint("Parallel", 12, 16),
    Sketcher.Constraint("Parallel", 15, 18),
    Sketcher.Constraint("Parallel", 16, 19),
    Sketcher.Constraint("Parallel", 18, 22),
    Sketcher.Constraint("Parallel", 19, 23),
    Sketcher.Constraint("Parallel", 22, 25),
    Sketcher.Constraint("Parallel", 23, 26),
    Sketcher.Constraint("Horizontal", 0, 2, 2, 2),
    Sketcher.Constraint("Horizontal", 3, 2, 5, 2),
    Sketcher.Constraint("Horizontal", 7, 2, 9, 2),
    Sketcher.Constraint("Horizontal", 10, 2, 12, 2),
    Sketcher.Constraint("Horizontal", 14, 2, 16, 2),
    Sketcher.Constraint("Horizontal", 17, 2, 19, 2),
    Sketcher.Constraint("Horizontal", 21, 2, 23, 2),
    Sketcher.Constraint("Horizontal", 24, 2, 26, 2),
    Sketcher.Constraint("Vertical", 6, 3, 13, 3),
    Sketcher.Constraint("Vertical", 20, 3, 27, 3),
    Sketcher.Constraint("Vertical", 13, 3, 1, 2),
    Sketcher.Constraint("Vertical", 1, 2, 4, 2),
    Sketcher.Constraint("Vertical", 5, 2, 7, 2),
    Sketcher.Constraint("Vertical", 4, 2, 8, 2),
    Sketcher.Constraint("Vertical", 27, 3, 15, 2),
    Sketcher.Constraint("Vertical", 19, 2, 21, 2),
    Sketcher.Constraint("Vertical", 18, 2, 22, 2),
    Sketcher.Constraint("Equal", 3, 7),
    Sketcher.Constraint("Equal", 10, 14),
    Sketcher.Constraint("Equal", 17, 21),
    Sketcher.Constraint("Equal", 12, 15),
    Sketcher.Constraint("Diameter", 6, 3.0),
    Sketcher.Constraint("Angle", 1, Q("30.000003 deg")),
    Sketcher.Constraint("DistanceX", -1, 1, 6, 3, 85.0),
    Sketcher.Constraint("DistanceX", -1, 1, 20, 3, 5.0),
    Sketcher.Constraint("DistanceX", -1, 1, 0, 2, 82.0),
    Sketcher.Constraint("DistanceY", 13, 3, 6, 3, 12.0),
    Sketcher.Constraint("DistanceY", 6, 3, 20, 3, 7.0),
    Sketcher.Constraint("DistanceY", 20, 3, 27, 3, 12.0),
    Sketcher.Constraint("DistanceY", 5, 2, 14, 2, 7.0),
    Sketcher.Constraint("DistanceY", -1, 1, 6, 3, 27.5),
    Sketcher.Constraint("DistanceY", 0, 1, 0, 2, 3.464102),
    Sketcher.Constraint("DistanceY", -1, 1, 18, 2, 37.964102),
    Sketcher.Constraint("DistanceY", -1, 1, 22, 2, 43.035898),
    Sketcher.Constraint("DistanceY", 7, 2, 5, 2, 8.535898),
])
pocket3 = body.newObject("PartDesign::Pocket", "Pocket002")
pocket3.Profile = sketch6
pocket3.Length = 2.4
pocket3.Reversed = True

sketch7 = body.newObject("Sketcher::SketchObject", "Sketch006")
sketch7.AttachmentSupport = (doc.getObject("XZ_Plane"), [""])
sketch7.MapMode = "FlatFace"
sketch7.AttachmentOffset = App.Placement(App.Vector(0, 0, 5), App.Rotation())
sketch7.addGeometry([
    Part.Circle(App.Vector(61, 57, 0), App.Vector(0, 0, 1), 1.5),
    Part.Circle(App.Vector(29, 57, 0), App.Vector(0, 0, 1), 1.5),
    Part.Circle(App.Vector(29, 10, 0), App.Vector(0, 0, 1), 1.5),
    Part.Circle(App.Vector(61, 10, 0), App.Vector(0, 0, 1), 1.5),
], False)
sketch7.addConstraint([
    Sketcher.Constraint("Equal", 0, 1),
    Sketcher.Constraint("Equal", 1, 2),
    Sketcher.Constraint("Equal", 2, 3),
    Sketcher.Constraint("Horizontal", 0, 3, 1, 3),
    Sketcher.Constraint("Horizontal", 2, 3, 3, 3),
    Sketcher.Constraint("Vertical", 1, 3, 2, 3),
    Sketcher.Constraint("Vertical", 0, 3, 3, 3),
    Sketcher.Constraint("Diameter", 0, 3.0),
    Sketcher.Constraint("DistanceX", -1, 1, 0, 3, 61.0),
    Sketcher.Constraint("DistanceY", -1, 1, 0, 3, 57.0),
    Sketcher.Constraint("DistanceX", -1, 1, 1, 3, 29.0),
    Sketcher.Constraint("DistanceY", -1, 1, 2, 3, 10.0),
])
pocket4 = body.newObject("PartDesign::Pocket", "Pocket003")
pocket4.Profile = sketch7
pocket4.Length = 5

sketch8 = body.newObject("Sketcher::SketchObject", "Sketch007")
sketch8.AttachmentSupport = (doc.getObject("XZ_Plane"), [""])
sketch8.MapMode = "FlatFace"
add_polygon(sketch8, [(58, 8.267949), (58, 11.732051), (61, 13.464102), (64, 11.732051), (64, 8.267949), (61, 6.535898)])
sketch8.addGeometry(Part.Circle(App.Vector(61, 10, 0), App.Vector(0, 0, 1), 1.5), False)
add_polygon(sketch8, [(32, 11.732051), (32, 8.267949), (29, 6.535898), (26, 8.267949), (26, 11.732051), (29, 13.464102)])
sketch8.addGeometry(Part.Circle(App.Vector(29, 10, 0), App.Vector(0, 0, 1), 1.5), False)
sketch8.addConstraint([
    Sketcher.Constraint("Vertical", 0),
    Sketcher.Constraint("Vertical", 3),
    Sketcher.Constraint("Vertical", 7),
    Sketcher.Constraint("Vertical", 10),
    Sketcher.Constraint("Equal", 6, 13),
    Sketcher.Constraint("Parallel", 1, 4),
    Sketcher.Constraint("Parallel", 2, 5),
    Sketcher.Constraint("Parallel", 4, 8),
    Sketcher.Constraint("Parallel", 5, 9),
    Sketcher.Constraint("Parallel", 8, 11),
    Sketcher.Constraint("Parallel", 9, 12),
    Sketcher.Constraint("Horizontal", 6, 3, 13, 3),
    Sketcher.Constraint("Horizontal", 0, 2, 2, 2),
    Sketcher.Constraint("Horizontal", 3, 2, 5, 2),
    Sketcher.Constraint("Horizontal", 5, 2, 7, 2),
    Sketcher.Constraint("Horizontal", 4, 2, 8, 2),
    Sketcher.Constraint("Horizontal", 7, 2, 9, 2),
    Sketcher.Constraint("Horizontal", 2, 2, 10, 2),
    Sketcher.Constraint("Horizontal", 1, 2, 11, 2),
    Sketcher.Constraint("Vertical", 6, 3, 1, 2),
    Sketcher.Constraint("Vertical", 1, 2, 4, 2),
    Sketcher.Constraint("Vertical", 13, 3, 8, 2),
    Sketcher.Constraint("Diameter", 6, 3.0),
    Sketcher.Constraint("Angle", 1, Q("30.000003 deg")),
    Sketcher.Constraint("DistanceX", -1, 1, 6, 3, 61.0),
    Sketcher.Constraint("DistanceY", -1, 1, 6, 3, 10.0),
    Sketcher.Constraint("DistanceX", -1, 1, 13, 3, 29.0),
    Sketcher.Constraint("DistanceX", -1, 1, 0, 2, 58.0),
    Sketcher.Constraint("DistanceY", -1, 1, 4, 2, 6.535898),
    Sketcher.Constraint("DistanceY", 0, 1, 0, 2, 3.464102),
])
pocket5 = body.newObject("PartDesign::Pocket", "Pocket004")
pocket5.Profile = sketch8
pocket5.Length = 2.4
pocket5.Reversed = True

doc.recompute()
